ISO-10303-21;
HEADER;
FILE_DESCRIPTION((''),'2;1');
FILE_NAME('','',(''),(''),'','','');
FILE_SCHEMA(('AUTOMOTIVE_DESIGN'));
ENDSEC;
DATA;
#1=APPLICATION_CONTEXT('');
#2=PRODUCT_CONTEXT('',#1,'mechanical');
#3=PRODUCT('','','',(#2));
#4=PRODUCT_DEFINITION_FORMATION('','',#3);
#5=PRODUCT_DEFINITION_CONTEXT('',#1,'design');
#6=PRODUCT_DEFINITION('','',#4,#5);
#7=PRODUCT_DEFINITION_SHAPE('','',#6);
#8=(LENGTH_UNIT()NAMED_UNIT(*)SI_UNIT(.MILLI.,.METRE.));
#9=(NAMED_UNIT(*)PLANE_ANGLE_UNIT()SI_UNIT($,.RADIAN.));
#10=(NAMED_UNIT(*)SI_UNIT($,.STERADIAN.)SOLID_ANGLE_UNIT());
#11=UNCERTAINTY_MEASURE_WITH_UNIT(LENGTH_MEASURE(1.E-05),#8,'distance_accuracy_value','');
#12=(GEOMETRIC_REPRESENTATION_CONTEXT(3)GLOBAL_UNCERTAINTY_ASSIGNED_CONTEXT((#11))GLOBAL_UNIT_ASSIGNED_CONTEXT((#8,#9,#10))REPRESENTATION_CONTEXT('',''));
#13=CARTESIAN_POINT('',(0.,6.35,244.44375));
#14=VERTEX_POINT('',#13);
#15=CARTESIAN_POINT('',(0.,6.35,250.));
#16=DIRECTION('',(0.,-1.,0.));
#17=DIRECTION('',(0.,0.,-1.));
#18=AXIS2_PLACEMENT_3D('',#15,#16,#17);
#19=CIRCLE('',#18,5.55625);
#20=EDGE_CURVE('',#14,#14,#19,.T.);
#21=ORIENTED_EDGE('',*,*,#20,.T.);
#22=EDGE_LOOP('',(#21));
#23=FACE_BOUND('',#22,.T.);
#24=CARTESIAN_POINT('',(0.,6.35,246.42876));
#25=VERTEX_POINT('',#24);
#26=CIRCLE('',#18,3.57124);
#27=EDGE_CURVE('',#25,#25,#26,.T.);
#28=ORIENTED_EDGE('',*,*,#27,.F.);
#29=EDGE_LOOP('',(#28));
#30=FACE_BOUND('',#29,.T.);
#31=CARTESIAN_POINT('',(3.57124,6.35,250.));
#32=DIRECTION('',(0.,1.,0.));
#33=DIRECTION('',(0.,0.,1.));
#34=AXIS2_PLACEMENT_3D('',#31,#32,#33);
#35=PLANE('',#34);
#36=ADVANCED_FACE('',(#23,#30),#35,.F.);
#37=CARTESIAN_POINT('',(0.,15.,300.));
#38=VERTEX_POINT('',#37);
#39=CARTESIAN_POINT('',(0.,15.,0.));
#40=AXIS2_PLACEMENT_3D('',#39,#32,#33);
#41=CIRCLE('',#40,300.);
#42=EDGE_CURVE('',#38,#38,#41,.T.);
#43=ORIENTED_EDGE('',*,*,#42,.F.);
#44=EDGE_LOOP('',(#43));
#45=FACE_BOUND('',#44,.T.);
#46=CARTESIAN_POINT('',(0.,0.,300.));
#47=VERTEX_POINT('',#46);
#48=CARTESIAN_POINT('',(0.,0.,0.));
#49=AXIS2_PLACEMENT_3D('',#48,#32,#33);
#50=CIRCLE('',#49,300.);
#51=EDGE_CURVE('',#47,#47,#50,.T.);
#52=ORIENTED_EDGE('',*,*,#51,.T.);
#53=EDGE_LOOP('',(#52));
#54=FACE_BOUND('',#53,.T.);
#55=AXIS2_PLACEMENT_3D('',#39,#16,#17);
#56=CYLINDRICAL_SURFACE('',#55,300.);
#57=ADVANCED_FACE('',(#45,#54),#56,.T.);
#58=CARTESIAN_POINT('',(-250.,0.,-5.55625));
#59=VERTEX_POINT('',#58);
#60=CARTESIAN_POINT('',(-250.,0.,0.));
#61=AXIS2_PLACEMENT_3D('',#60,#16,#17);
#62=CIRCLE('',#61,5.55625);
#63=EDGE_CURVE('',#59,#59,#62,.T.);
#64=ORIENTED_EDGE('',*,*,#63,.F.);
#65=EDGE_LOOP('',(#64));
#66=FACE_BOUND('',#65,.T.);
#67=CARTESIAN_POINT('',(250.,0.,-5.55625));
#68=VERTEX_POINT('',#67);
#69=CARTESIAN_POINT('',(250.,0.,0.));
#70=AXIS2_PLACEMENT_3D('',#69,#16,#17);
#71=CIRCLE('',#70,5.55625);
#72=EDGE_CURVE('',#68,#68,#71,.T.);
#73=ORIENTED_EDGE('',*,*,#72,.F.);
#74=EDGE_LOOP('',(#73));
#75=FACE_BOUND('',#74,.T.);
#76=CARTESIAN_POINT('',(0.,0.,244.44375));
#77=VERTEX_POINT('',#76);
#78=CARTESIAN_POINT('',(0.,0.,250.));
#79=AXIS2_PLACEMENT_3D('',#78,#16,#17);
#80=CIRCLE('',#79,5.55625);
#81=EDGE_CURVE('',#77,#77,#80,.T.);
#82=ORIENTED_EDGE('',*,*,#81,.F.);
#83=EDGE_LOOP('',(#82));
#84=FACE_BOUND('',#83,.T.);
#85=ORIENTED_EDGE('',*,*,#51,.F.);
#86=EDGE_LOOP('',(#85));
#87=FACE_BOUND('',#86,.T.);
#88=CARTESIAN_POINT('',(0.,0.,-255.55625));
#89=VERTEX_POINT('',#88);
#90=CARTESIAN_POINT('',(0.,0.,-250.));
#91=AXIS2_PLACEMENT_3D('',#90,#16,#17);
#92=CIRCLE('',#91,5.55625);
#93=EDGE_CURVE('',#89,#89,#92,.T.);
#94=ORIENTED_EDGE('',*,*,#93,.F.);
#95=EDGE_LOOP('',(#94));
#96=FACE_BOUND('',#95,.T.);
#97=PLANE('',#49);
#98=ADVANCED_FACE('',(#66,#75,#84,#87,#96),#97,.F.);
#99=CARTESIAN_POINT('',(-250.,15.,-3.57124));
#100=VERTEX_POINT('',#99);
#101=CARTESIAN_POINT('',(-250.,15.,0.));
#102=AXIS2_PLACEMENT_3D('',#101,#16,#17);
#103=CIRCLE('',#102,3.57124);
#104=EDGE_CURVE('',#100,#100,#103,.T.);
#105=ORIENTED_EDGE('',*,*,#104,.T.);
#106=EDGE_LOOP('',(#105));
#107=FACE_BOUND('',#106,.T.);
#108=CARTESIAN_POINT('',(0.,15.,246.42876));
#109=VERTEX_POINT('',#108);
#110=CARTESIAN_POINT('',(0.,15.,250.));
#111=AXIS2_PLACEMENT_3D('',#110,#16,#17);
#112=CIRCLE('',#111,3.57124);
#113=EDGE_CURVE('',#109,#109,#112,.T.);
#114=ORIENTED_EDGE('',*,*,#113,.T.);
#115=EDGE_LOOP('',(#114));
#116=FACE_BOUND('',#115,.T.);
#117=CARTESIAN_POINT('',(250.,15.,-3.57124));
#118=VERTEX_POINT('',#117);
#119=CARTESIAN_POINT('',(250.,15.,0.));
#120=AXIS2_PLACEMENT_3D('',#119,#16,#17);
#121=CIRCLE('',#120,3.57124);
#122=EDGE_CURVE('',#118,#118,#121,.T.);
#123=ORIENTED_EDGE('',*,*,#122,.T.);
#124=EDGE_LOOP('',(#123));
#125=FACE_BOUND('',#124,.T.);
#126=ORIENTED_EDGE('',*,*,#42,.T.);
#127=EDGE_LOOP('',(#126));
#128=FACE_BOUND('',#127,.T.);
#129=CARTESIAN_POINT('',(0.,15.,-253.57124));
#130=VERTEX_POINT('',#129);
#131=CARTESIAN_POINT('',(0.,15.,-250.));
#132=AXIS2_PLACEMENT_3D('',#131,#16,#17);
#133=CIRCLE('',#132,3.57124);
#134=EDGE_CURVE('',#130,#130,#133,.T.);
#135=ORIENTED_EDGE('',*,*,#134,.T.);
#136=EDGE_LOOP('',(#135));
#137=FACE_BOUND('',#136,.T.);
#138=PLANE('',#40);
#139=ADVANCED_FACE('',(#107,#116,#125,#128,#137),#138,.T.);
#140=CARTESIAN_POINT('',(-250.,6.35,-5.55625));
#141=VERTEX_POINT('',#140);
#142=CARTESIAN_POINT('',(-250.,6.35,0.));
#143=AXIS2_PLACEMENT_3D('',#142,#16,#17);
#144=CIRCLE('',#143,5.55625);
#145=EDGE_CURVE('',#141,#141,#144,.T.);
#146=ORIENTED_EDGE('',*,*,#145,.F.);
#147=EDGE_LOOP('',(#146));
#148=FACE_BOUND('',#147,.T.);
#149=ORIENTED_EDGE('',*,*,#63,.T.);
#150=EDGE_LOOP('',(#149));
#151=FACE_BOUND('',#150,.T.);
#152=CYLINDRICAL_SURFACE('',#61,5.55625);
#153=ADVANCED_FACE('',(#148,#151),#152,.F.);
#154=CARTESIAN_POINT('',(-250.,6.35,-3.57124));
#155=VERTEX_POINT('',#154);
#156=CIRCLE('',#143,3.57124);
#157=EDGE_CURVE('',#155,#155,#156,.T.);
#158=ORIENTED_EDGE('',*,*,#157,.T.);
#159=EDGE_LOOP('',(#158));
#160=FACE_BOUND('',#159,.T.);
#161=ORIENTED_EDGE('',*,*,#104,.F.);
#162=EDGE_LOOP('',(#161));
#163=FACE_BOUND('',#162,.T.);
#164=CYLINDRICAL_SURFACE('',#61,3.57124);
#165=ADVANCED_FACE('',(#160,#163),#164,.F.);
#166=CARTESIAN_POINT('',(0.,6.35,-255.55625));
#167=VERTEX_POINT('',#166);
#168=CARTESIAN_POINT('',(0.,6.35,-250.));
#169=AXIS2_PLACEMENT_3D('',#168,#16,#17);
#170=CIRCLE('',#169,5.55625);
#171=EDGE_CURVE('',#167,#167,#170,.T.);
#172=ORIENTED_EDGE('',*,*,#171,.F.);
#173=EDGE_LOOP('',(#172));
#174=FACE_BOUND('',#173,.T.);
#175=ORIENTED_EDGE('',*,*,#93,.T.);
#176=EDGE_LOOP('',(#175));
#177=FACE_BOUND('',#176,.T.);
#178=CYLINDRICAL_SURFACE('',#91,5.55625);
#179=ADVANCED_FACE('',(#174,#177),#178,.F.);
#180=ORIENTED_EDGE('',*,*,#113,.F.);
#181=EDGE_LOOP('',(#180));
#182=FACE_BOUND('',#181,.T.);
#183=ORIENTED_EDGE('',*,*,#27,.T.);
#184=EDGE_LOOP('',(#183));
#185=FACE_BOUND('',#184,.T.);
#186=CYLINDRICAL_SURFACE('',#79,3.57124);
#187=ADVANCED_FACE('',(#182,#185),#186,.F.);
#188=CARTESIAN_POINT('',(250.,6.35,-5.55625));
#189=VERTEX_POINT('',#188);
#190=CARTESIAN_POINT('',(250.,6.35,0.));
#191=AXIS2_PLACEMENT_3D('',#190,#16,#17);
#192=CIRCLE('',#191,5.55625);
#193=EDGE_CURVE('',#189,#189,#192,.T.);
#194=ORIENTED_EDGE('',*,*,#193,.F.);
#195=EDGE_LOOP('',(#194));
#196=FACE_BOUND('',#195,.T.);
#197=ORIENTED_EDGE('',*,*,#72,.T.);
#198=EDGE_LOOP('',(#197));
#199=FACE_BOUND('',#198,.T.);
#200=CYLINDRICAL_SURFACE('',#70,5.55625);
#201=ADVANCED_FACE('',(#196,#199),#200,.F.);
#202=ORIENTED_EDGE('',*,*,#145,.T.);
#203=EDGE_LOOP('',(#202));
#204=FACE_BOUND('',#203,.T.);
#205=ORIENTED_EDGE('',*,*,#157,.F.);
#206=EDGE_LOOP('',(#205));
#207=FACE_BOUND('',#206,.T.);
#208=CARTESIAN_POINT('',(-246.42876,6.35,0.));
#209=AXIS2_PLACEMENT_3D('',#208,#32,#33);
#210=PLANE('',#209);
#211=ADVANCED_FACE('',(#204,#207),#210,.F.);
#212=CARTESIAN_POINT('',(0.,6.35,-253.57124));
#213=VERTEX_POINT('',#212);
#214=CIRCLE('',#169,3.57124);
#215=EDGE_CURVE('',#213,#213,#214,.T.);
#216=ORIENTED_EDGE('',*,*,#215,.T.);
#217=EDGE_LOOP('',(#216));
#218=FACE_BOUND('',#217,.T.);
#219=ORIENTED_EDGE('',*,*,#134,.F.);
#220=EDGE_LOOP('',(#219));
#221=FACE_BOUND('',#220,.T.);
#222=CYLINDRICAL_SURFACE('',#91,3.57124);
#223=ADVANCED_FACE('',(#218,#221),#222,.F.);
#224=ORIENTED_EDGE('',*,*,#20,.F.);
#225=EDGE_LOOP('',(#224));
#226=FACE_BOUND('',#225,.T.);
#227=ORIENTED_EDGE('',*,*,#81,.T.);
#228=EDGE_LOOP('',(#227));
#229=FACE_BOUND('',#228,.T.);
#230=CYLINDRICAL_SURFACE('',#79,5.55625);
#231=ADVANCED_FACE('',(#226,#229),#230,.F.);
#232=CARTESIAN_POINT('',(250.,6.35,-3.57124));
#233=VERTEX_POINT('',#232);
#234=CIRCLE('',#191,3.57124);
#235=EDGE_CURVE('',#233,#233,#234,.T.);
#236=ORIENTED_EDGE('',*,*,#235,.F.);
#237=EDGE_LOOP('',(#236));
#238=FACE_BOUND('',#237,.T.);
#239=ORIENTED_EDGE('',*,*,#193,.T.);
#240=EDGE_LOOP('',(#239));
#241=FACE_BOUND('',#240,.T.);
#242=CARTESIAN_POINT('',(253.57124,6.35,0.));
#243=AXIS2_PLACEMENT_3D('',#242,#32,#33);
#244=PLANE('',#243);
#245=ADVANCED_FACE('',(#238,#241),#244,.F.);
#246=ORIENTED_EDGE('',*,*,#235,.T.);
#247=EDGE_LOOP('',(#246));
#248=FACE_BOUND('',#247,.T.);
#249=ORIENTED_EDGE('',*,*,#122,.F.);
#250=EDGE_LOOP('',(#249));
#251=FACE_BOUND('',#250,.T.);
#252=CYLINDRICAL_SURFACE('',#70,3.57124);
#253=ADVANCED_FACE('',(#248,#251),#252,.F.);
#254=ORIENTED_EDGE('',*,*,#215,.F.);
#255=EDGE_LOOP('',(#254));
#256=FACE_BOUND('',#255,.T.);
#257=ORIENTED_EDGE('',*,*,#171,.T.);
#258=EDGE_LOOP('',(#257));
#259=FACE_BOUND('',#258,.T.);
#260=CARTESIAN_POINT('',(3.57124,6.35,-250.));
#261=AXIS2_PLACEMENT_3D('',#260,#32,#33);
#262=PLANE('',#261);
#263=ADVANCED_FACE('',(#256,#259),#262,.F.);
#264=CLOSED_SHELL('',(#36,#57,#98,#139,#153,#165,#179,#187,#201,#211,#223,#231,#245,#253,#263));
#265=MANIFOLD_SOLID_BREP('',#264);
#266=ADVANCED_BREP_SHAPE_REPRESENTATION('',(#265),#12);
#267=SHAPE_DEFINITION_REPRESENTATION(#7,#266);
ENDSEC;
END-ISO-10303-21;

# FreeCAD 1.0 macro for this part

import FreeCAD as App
import Part
import Sketcher
Q = App.Units.Quantity

doc = App.newDocument("Part")
body = doc.addObject("PartDesign::Body", "Body")

# Sketch on XZ plane
sketch1 = body.newObject("Sketcher::SketchObject", "Sketch")
sketch1.AttachmentSupport = (doc.getObject("XZ_Plane"), [""])
sketch1.MapMode = "FlatFace"
sketch1.addGeometry(Part.Circle(App.Vector(0, 0, 0), App.Vector(0, 0, 1), 300), False)
sketch1.addConstraint([
    Sketcher.Constraint("Coincident", 0, 3, -1, 1),
    Sketcher.Constraint("Diameter", 0, Q("600 mm")),
])
pad1 = body.newObject("PartDesign::Pad", "Pad")
pad1.Profile = sketch1
pad1.Length = 15
pad1.Reversed = True

# Sketch on XZ plane
sketch2 = body.newObject("Sketcher::SketchObject", "Sketch001")
sketch2.AttachmentSupport = (doc.getObject("XZ_Plane"), [""])
sketch2.MapMode = "FlatFace"
sketch2.addGeometry([
    Part.Circle(App.Vector(-250, 0, 0), App.Vector(0, 0, 1), 3.6),
    Part.Circle(App.Vector(0, -250, 0), App.Vector(0, 0, 1), 3.6),
    Part.Circle(App.Vector(250, 0, 0), App.Vector(0, 0, 1), 3.6),
    Part.Circle(App.Vector(0, 250, 0), App.Vector(0, 0, 1), 3.6),
], False)
sketch2.addConstraint([
    Sketcher.Constraint("Equal", 0, 1),
    Sketcher.Constraint("Equal", 1, 2),
    Sketcher.Constraint("Equal", 2, 3),
    Sketcher.Constraint("Symmetric", 0, 3, 2, 3, -1, 1),
    Sketcher.Constraint("Symmetric", 1, 3, 3, 3, -1, 1),
    Sketcher.Constraint("PointOnObject", 0, 3, -1),
    Sketcher.Constraint("PointOnObject", 1, 3, -2),
    Sketcher.Constraint("DistanceX", 0, 3, -1, 1, Q("250 mm")),
    Sketcher.Constraint("DistanceY", 1, 3, -1, 1, Q("250 mm")),
    Sketcher.Constraint("Diameter", 0, Q("7.14248 mm")),
])
doc.recompute()
hole = body.newObject("PartDesign::Hole", "Hole")
hole.Profile = sketch2
hole.ThreadType = "None"
hole.Diameter = 7.14248
hole.DepthType = "ThroughAll"
hole.HoleCutType = "Counterbore"
hole.HoleCutDiameter = 11.1125
hole.HoleCutDepth = 6.35

doc.recompute()
